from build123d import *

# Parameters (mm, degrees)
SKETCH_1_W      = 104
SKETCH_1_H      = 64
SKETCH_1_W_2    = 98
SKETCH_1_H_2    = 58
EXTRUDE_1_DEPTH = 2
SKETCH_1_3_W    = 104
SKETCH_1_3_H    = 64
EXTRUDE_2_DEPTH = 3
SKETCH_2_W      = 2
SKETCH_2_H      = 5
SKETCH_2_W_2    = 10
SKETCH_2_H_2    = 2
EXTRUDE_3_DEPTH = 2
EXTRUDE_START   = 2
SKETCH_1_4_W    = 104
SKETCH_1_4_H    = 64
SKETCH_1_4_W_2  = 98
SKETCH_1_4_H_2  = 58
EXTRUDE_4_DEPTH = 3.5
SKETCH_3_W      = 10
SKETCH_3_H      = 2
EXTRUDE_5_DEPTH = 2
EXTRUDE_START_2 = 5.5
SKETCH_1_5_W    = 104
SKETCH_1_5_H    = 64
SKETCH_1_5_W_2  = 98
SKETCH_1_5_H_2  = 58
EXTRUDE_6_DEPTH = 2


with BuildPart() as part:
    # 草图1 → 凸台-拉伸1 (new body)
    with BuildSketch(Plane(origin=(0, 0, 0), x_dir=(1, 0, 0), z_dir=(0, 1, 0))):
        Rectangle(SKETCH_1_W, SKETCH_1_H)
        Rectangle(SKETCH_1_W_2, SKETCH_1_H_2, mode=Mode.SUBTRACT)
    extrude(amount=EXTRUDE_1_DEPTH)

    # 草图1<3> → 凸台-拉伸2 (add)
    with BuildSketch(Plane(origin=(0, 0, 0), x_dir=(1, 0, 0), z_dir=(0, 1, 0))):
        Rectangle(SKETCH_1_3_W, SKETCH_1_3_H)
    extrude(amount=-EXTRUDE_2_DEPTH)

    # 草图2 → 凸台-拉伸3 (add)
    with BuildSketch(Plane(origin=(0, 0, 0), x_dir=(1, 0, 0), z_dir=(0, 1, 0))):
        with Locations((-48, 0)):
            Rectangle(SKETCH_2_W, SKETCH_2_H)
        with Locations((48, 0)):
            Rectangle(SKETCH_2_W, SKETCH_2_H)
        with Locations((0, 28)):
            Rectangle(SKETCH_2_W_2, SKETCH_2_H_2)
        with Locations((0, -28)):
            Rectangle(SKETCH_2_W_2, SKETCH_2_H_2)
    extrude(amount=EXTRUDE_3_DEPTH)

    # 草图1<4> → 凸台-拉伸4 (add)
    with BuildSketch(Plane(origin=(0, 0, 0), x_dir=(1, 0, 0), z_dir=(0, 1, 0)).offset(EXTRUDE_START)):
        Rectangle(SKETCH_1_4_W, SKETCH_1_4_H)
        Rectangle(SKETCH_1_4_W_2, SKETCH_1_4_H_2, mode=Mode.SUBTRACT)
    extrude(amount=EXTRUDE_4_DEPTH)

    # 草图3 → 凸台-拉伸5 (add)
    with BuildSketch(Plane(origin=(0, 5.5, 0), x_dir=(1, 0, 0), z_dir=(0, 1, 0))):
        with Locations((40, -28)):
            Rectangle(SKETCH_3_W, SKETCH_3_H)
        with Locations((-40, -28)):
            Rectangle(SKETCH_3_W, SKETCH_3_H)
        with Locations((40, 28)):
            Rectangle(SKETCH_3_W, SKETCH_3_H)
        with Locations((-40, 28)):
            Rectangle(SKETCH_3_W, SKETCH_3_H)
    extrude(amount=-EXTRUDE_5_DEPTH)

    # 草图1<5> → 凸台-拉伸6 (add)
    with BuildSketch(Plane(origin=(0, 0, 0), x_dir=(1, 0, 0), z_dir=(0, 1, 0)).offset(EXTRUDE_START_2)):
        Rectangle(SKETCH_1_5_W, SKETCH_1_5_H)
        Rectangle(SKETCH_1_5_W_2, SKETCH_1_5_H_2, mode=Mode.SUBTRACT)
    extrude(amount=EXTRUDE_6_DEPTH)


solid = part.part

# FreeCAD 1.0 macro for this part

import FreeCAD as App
import Part
import Sketcher
from FreeCAD import Vector

doc = App.newDocument("Part")
body = doc.addObject("PartDesign::Body", "Body")

sketch1 = body.newObject("Sketcher::SketchObject", "Sketch")
sketch1.AttachmentSupport = (doc.getObject("XZ_Plane"), [""])
sketch1.MapMode = "FlatFace"
sketch1.addGeometry([
    Part.LineSegment(Vector(-52, -32, 0), Vector(-52, 32, 0)),
    Part.LineSegment(Vector(-52, 32, 0), Vector(52, 32, 0)),
    Part.LineSegment(Vector(52, 32, 0), Vector(52, -32, 0)),
    Part.LineSegment(Vector(52, -32, 0), Vector(-52, -32, 0)),
    Part.LineSegment(Vector(49, 29, 0), Vector(-49, 29, 0)),
    Part.LineSegment(Vector(-49, 29, 0), Vector(-49, -29, 0)),
    Part.LineSegment(Vector(-49, -29, 0), Vector(49, -29, 0)),
    Part.LineSegment(Vector(49, -29, 0), Vector(49, 29, 0)),
], False)
sketch1.addConstraint([
    Sketcher.Constraint("Coincident", 0, 2, 1, 1),
    Sketcher.Constraint("Coincident", 1, 2, 2, 1),
    Sketcher.Constraint("Coincident", 2, 2, 3, 1),
    Sketcher.Constraint("Coincident", 3, 2, 0, 1),
    Sketcher.Constraint("Coincident", 4, 2, 5, 1),
    Sketcher.Constraint("Coincident", 5, 2, 6, 1),
    Sketcher.Constraint("Coincident", 6, 2, 7, 1),
    Sketcher.Constraint("Coincident", 7, 2, 4, 1),
    Sketcher.Constraint("Vertical", 0),
    Sketcher.Constraint("Horizontal", 1),
    Sketcher.Constraint("Vertical", 2),
    Sketcher.Constraint("Horizontal", 3),
    Sketcher.Constraint("Horizontal", 4),
    Sketcher.Constraint("Vertical", 5),
    Sketcher.Constraint("Horizontal", 6),
    Sketcher.Constraint("Vertical", 7),
    Sketcher.Constraint("Symmetric", 0, 2, 2, 2, -1, 1),
    Sketcher.Constraint("Symmetric", 4, 2, 6, 2, -1, 1),
    Sketcher.Constraint("DistanceX", 1, 1, 1, 2, 104.0),
    Sketcher.Constraint("DistanceX", 4, 2, 4, 1, 98.0),
    Sketcher.Constraint("DistanceY", 0, 1, 0, 2, 64.0),
    Sketcher.Constraint("DistanceY", 5, 2, 5, 1, 58.0),
])
pad1 = body.newObject("PartDesign::Pad", "Pad")
pad1.Profile = sketch1
pad1.Length = 2
pad1.Reversed = True

sketch2 = body.newObject("Sketcher::SketchObject", "Sketch001")
sketch2.AttachmentSupport = (doc.getObject("XZ_Plane"), [""])
sketch2.MapMode = "FlatFace"
sketch2.addGeometry([
    Part.LineSegment(Vector(-52, -32, 0), Vector(-52, 32, 0)),
    Part.LineSegment(Vector(-52, 32, 0), Vector(52, 32, 0)),
    Part.LineSegment(Vector(52, 32, 0), Vector(52, -32, 0)),
    Part.LineSegment(Vector(52, -32, 0), Vector(-52, -32, 0)),
], False)
sketch2.addConstraint([
    Sketcher.Constraint("Coincident", 0, 2, 1, 1),
    Sketcher.Constraint("Coincident", 1, 2, 2, 1),
    Sketcher.Constraint("Coincident", 2, 2, 3, 1),
    Sketcher.Constraint("Coincident", 3, 2, 0, 1),
    Sketcher.Constraint("Vertical", 0),
    Sketcher.Constraint("Horizontal", 1),
    Sketcher.Constraint("Vertical", 2),
    Sketcher.Constraint("Horizontal", 3),
    Sketcher.Constraint("Symmetric", 0, 2, 2, 2, -1, 1),
    Sketcher.Constraint("DistanceX", 1, 1, 1, 2, 104.0),
    Sketcher.Constraint("DistanceY", 0, 1, 0, 2, 64.0),
])
pad2 = body.newObject("PartDesign::Pad", "Pad001")
pad2.Profile = sketch2
pad2.Length = 3

sketch3 = body.newObject("Sketcher::SketchObject", "Sketch002")
sketch3.AttachmentSupport = (doc.getObject("XZ_Plane"), [""])
sketch3.MapMode = "FlatFace"
sketch3.addGeometry([
    Part.LineSegment(Vector(-49, -2.5, 0), Vector(-49, 2.5, 0)),
    Part.LineSegment(Vector(-49, 2.5, 0), Vector(-47, 2.5, 0)),
    Part.LineSegment(Vector(-47, 2.5, 0), Vector(-47, -2.5, 0)),
    Part.LineSegment(Vector(-47, -2.5, 0), Vector(-49, -2.5, 0)),
    Part.LineSegment(Vector(47, -2.5, 0), Vector(47, 2.5, 0)),
    Part.LineSegment(Vector(47, 2.5, 0), Vector(49, 2.5, 0)),
    Part.LineSegment(Vector(49, 2.5, 0), Vector(49, -2.5, 0)),
    Part.LineSegment(Vector(49, -2.5, 0), Vector(47, -2.5, 0)),
    Part.LineSegment(Vector(-5, -29, 0), Vector(-5, -27, 0)),
    Part.LineSegment(Vector(-5, -27, 0), Vector(5, -27, 0)),
    Part.LineSegment(Vector(5, -27, 0), Vector(5, -29, 0)),
    Part.LineSegment(Vector(5, -29, 0), Vector(-5, -29, 0)),
    Part.LineSegment(Vector(-5, 27, 0), Vector(-5, 29, 0)),
    Part.LineSegment(Vector(-5, 29, 0), Vector(5, 29, 0)),
    Part.LineSegment(Vector(5, 29, 0), Vector(5, 27, 0)),
    Part.LineSegment(Vector(5, 27, 0), Vector(-5, 27, 0)),
], False)
sketch3.addConstraint([
    Sketcher.Constraint("Coincident", 0, 2, 1, 1),
    Sketcher.Constraint("Coincident", 1, 2, 2, 1),
    Sketcher.Constraint("Coincident", 2, 2, 3, 1),
    Sketcher.Constraint("Coincident", 3, 2, 0, 1),
    Sketcher.Constraint("Coincident", 4, 2, 5, 1),
    Sketcher.Constraint("Coincident", 5, 2, 6, 1),
    Sketcher.Constraint("Coincident", 6, 2, 7, 1),
    Sketcher.Constraint("Coincident", 7, 2, 4, 1),
    Sketcher.Constraint("Coincident", 8, 2, 9, 1),
    Sketcher.Constraint("Coincident", 9, 2, 10, 1),
    Sketcher.Constraint("Coincident", 10, 2, 11, 1),
    Sketcher.Constraint("Coincident", 11, 2, 8, 1),
    Sketcher.Constraint("Coincident", 12, 2, 13, 1),
    Sketcher.Constraint("Coincident", 13, 2, 14, 1),
    Sketcher.Constraint("Coincident", 14, 2, 15, 1),
    Sketcher.Constraint("Coincident", 15, 2, 12, 1),
    Sketcher.Constraint("Vertical", 0),
    Sketcher.Constraint("Horizontal", 1),
    Sketcher.Constraint("Vertical", 2),
    Sketcher.Constraint("Horizontal", 3),
    Sketcher.Constraint("Vertical", 4),
    Sketcher.Constraint("Horizontal", 5),
    Sketcher.Constraint("Vertical", 6),
    Sketcher.Constraint("Horizontal", 7),
    Sketcher.Constraint("Vertical", 8),
    Sketcher.Constraint("Horizontal", 9),
    Sketcher.Constraint("Vertical", 10),
    Sketcher.Constraint("Horizontal", 11),
    Sketcher.Constraint("Vertical", 12),
    Sketcher.Constraint("Horizontal", 13),
    Sketcher.Constraint("Vertical", 14),
    Sketcher.Constraint("Horizontal", 15),
    Sketcher.Constraint("Symmetric", 2, 2, 4, 2, -1, 1),
    Sketcher.Constraint("Symmetric", 0, 2, 6, 2, -1, 1),
    Sketcher.Constraint("Symmetric", 10, 2, 12, 2, -1, 1),
    Sketcher.Constraint("Symmetric", 8, 2, 14, 2, -1, 1),
    Sketcher.Constraint("Horizontal", 1, 2, 4, 2),
    Sketcher.Constraint("Vertical", 11, 2, 12, 2),
    Sketcher.Constraint("Equal", 7, 8),
    Sketcher.Constraint("DistanceX", 1, 1, 1, 2, 2.0),
    Sketcher.Constraint("DistanceX", 9, 1, 9, 2, 10.0),
    Sketcher.Constraint("DistanceY", 0, 1, 0, 2, 5.0),
    Sketcher.Constraint("DistanceX", 0, 2, -1, 1, 49.0),
    Sketcher.Constraint("DistanceY", 8, 2, -1, 1, 27.0),
])
pad3 = body.newObject("PartDesign::Pad", "Pad002")
pad3.Profile = sketch3
pad3.Length = 2
pad3.Reversed = True

sketch4 = body.newObject("Sketcher::SketchObject", "Sketch003")
sketch4.AttachmentSupport = (doc.getObject("XZ_Plane"), [""])
sketch4.MapMode = "FlatFace"
sketch4.AttachmentOffset = App.Placement(Vector(0, 0, -2), App.Rotation())
sketch4.addGeometry([
    Part.LineSegment(Vector(-52, -32, 0), Vector(-52, 32, 0)),
    Part.LineSegment(Vector(-52, 32, 0), Vector(52, 32, 0)),
    Part.LineSegment(Vector(52, 32, 0), Vector(52, -32, 0)),
    Part.LineSegment(Vector(52, -32, 0), Vector(-52, -32, 0)),
    Part.LineSegment(Vector(49, 29, 0), Vector(-49, 29, 0)),
    Part.LineSegment(Vector(-49, 29, 0), Vector(-49, -29, 0)),
    Part.LineSegment(Vector(-49, -29, 0), Vector(49, -29, 0)),
    Part.LineSegment(Vector(49, -29, 0), Vector(49, 29, 0)),
], False)
sketch4.addConstraint([
    Sketcher.Constraint("Coincident", 0, 2, 1, 1),
    Sketcher.Constraint("Coincident", 1, 2, 2, 1),
    Sketcher.Constraint("Coincident", 2, 2, 3, 1),
    Sketcher.Constraint("Coincident", 3, 2, 0, 1),
    Sketcher.Constraint("Coincident", 4, 2, 5, 1),
    Sketcher.Constraint("Coincident", 5, 2, 6, 1),
    Sketcher.Constraint("Coincident", 6, 2, 7, 1),
    Sketcher.Constraint("Coincident", 7, 2, 4, 1),
    Sketcher.Constraint("Vertical", 0),
    Sketcher.Constraint("Horizontal", 1),
    Sketcher.Constraint("Vertical", 2),
    Sketcher.Constraint("Horizontal", 3),
    Sketcher.Constraint("Horizontal", 4),
    Sketcher.Constraint("Vertical", 5),
    Sketcher.Constraint("Horizontal", 6),
    Sketcher.Constraint("Vertical", 7),
    Sketcher.Constraint("Symmetric", 0, 2, 2, 2, -1, 1),
    Sketcher.Constraint("Symmetric", 4, 2, 6, 2, -1, 1),
    Sketcher.Constraint("DistanceX", 1, 1, 1, 2, 104.0),
    Sketcher.Constraint("DistanceX", 4, 2, 4, 1, 98.0),
    Sketcher.Constraint("DistanceY", 0, 1, 0, 2, 64.0),
    Sketcher.Constraint("DistanceY", 5, 2, 5, 1, 58.0),
])
pad4 = body.newObject("PartDesign::Pad", "Pad003")
pad4.Profile = sketch4
pad4.Length = 3.5
pad4.Reversed = True

sketch5 = body.newObject("Sketcher::SketchObject", "Sketch004")
sketch5.AttachmentSupport = (doc.getObject("XZ_Plane"), [""])
sketch5.MapMode = "FlatFace"
sketch5.AttachmentOffset = App.Placement(Vector(0, 0, -5.5), App.Rotation())
sketch5.addGeometry([
    Part.LineSegment(Vector(35, 27, 0), Vector(35, 29, 0)),
    Part.LineSegment(Vector(35, 29, 0), Vector(45, 29, 0)),
    Part.LineSegment(Vector(45, 29, 0), Vector(45, 27, 0)),
    Part.LineSegment(Vector(45, 27, 0), Vector(35, 27, 0)),
    Part.LineSegment(Vector(-45, 27, 0), Vector(-45, 29, 0)),
    Part.LineSegment(Vector(-45, 29, 0), Vector(-35, 29, 0)),
    Part.LineSegment(Vector(-35, 29, 0), Vector(-35, 27, 0)),
    Part.LineSegment(Vector(-35, 27, 0), Vector(-45, 27, 0)),
    Part.LineSegment(Vector(35, -29, 0), Vector(35, -27, 0)),
    Part.LineSegment(Vector(35, -27, 0), Vector(45, -27, 0)),
    Part.LineSegment(Vector(45, -27, 0), Vector(45, -29, 0)),
    Part.LineSegment(Vector(45, -29, 0), Vector(35, -29, 0)),
    Part.LineSegment(Vector(-45, -29, 0), Vector(-45, -27, 0)),
    Part.LineSegment(Vector(-45, -27, 0), Vector(-35, -27, 0)),
    Part.LineSegment(Vector(-35, -27, 0), Vector(-35, -29, 0)),
    Part.LineSegment(Vector(-35, -29, 0), Vector(-45, -29, 0)),
], False)
sketch5.addConstraint([
    Sketcher.Constraint("Coincident", 0, 2, 1, 1),
    Sketcher.Constraint("Coincident", 1, 2, 2, 1),
    Sketcher.Constraint("Coincident", 2, 2, 3, 1),
    Sketcher.Constraint("Coincident", 3, 2, 0, 1),
    Sketcher.Constraint("Coincident", 4, 2, 5, 1),
    Sketcher.Constraint("Coincident", 5, 2, 6, 1),
    Sketcher.Constraint("Coincident", 6, 2, 7, 1),
    Sketcher.Constraint("Coincident", 7, 2, 4, 1),
    Sketcher.Constraint("Coincident", 8, 2, 9, 1),
    Sketcher.Constraint("Coincident", 9, 2, 10, 1),
    Sketcher.Constraint("Coincident", 10, 2, 11, 1),
    Sketcher.Constraint("Coincident", 11, 2, 8, 1),
    Sketcher.Constraint("Coincident", 12, 2, 13, 1),
    Sketcher.Constraint("Coincident", 13, 2, 14, 1),
    Sketcher.Constraint("Coincident", 14, 2, 15, 1),
    Sketcher.Constraint("Coincident", 15, 2, 12, 1),
    Sketcher.Constraint("Vertical", 0),
    Sketcher.Constraint("Horizontal", 1),
    Sketcher.Constraint("Vertical", 2),
    Sketcher.Constraint("Horizontal", 3),
    Sketcher.Constraint("Vertical", 4),
    Sketcher.Constraint("Horizontal", 5),
    Sketcher.Constraint("Vertical", 6),
    Sketcher.Constraint("Horizontal", 7),
    Sketcher.Constraint("Vertical", 8),
    Sketcher.Constraint("Horizontal", 9),
    Sketcher.Constraint("Vertical", 10),
    Sketcher.Constraint("Horizontal", 11),
    Sketcher.Constraint("Vertical", 12),
    Sketcher.Constraint("Horizontal", 13),
    Sketcher.Constraint("Vertical", 14),
    Sketcher.Constraint("Horizontal", 15),
    Sketcher.Constraint("Symmetric", 6, 2, 8, 2, -1, 1),
    Sketcher.Constraint("Symmetric", 4, 2, 10, 2, -1, 1),
    Sketcher.Constraint("Symmetric", 2, 2, 12, 2, -1, 1),
    Sketcher.Constraint("Symmetric", 0, 2, 14, 2, -1, 1),
    Sketcher.Constraint("Symmetric", 1, 2, 4, 2, -2),
    Sketcher.Constraint("Symmetric", 3, 2, 6, 2, -2),
    Sketcher.Constraint("DistanceX", 1, 1, 1, 2, 10.0),
    Sketcher.Constraint("DistanceY", 0, 1, 0, 2, 2.0),
    Sketcher.Constraint("DistanceX", -1, 1, 0, 2, 35.0),
    Sketcher.Constraint("DistanceY", -1, 1, 0, 2, 29.0),
])
pad5 = body.newObject("PartDesign::Pad", "Pad004")
pad5.Profile = sketch5
pad5.Length = 2

sketch6 = body.newObject("Sketcher::SketchObject", "Sketch005")
sketch6.AttachmentSupport = (doc.getObject("XZ_Plane"), [""])
sketch6.MapMode = "FlatFace"
sketch6.AttachmentOffset = App.Placement(Vector(0, 0, -5.5), App.Rotation())
sketch6.addGeometry([
    Part.LineSegment(Vector(-52, -32, 0), Vector(-52, 32, 0)),
    Part.LineSegment(Vector(-52, 32, 0), Vector(52, 32, 0)),
    Part.LineSegment(Vector(52, 32, 0), Vector(52, -32, 0)),
    Part.LineSegment(Vector(52, -32, 0), Vector(-52, -32, 0)),
    Part.LineSegment(Vector(49, 29, 0), Vector(-49, 29, 0)),
    Part.LineSegment(Vector(-49, 29, 0), Vector(-49, -29, 0)),
    Part.LineSegment(Vector(-49, -29, 0), Vector(49, -29, 0)),
    Part.LineSegment(Vector(49, -29, 0), Vector(49, 29, 0)),
], False)
sketch6.addConstraint([
    Sketcher.Constraint("Coincident", 0, 2, 1, 1),
    Sketcher.Constraint("Coincident", 1, 2, 2, 1),
    Sketcher.Constraint("Coincident", 2, 2, 3, 1),
    Sketcher.Constraint("Coincident", 3, 2, 0, 1),
    Sketcher.Constraint("Coincident", 4, 2, 5, 1),
    Sketcher.Constraint("Coincident", 5, 2, 6, 1),
    Sketcher.Constraint("Coincident", 6, 2, 7, 1),
    Sketcher.Constraint("Coincident", 7, 2, 4, 1),
    Sketcher.Constraint("Vertical", 0),
    Sketcher.Constraint("Horizontal", 1),
    Sketcher.Constraint("Vertical", 2),
    Sketcher.Constraint("Horizontal", 3),
    Sketcher.Constraint("Horizontal", 4),
    Sketcher.Constraint("Vertical", 5),
    Sketcher.Constraint("Horizontal", 6),
    Sketcher.Constraint("Vertical", 7),
    Sketcher.Constraint("Symmetric", 0, 2, 2, 2, -1, 1),
    Sketcher.Constraint("Symmetric", 4, 2, 6, 2, -1, 1),
    Sketcher.Constraint("DistanceX", 1, 1, 1, 2, 104.0),
    Sketcher.Constraint("DistanceX", 4, 2, 4, 1, 98.0),
    Sketcher.Constraint("DistanceY", 0, 1, 0, 2, 64.0),
    Sketcher.Constraint("DistanceY", 5, 2, 5, 1, 58.0),
])
pad6 = body.newObject("PartDesign::Pad", "Pad005")
pad6.Profile = sketch6
pad6.Length = 2
pad6.Reversed = True

doc.recompute()
